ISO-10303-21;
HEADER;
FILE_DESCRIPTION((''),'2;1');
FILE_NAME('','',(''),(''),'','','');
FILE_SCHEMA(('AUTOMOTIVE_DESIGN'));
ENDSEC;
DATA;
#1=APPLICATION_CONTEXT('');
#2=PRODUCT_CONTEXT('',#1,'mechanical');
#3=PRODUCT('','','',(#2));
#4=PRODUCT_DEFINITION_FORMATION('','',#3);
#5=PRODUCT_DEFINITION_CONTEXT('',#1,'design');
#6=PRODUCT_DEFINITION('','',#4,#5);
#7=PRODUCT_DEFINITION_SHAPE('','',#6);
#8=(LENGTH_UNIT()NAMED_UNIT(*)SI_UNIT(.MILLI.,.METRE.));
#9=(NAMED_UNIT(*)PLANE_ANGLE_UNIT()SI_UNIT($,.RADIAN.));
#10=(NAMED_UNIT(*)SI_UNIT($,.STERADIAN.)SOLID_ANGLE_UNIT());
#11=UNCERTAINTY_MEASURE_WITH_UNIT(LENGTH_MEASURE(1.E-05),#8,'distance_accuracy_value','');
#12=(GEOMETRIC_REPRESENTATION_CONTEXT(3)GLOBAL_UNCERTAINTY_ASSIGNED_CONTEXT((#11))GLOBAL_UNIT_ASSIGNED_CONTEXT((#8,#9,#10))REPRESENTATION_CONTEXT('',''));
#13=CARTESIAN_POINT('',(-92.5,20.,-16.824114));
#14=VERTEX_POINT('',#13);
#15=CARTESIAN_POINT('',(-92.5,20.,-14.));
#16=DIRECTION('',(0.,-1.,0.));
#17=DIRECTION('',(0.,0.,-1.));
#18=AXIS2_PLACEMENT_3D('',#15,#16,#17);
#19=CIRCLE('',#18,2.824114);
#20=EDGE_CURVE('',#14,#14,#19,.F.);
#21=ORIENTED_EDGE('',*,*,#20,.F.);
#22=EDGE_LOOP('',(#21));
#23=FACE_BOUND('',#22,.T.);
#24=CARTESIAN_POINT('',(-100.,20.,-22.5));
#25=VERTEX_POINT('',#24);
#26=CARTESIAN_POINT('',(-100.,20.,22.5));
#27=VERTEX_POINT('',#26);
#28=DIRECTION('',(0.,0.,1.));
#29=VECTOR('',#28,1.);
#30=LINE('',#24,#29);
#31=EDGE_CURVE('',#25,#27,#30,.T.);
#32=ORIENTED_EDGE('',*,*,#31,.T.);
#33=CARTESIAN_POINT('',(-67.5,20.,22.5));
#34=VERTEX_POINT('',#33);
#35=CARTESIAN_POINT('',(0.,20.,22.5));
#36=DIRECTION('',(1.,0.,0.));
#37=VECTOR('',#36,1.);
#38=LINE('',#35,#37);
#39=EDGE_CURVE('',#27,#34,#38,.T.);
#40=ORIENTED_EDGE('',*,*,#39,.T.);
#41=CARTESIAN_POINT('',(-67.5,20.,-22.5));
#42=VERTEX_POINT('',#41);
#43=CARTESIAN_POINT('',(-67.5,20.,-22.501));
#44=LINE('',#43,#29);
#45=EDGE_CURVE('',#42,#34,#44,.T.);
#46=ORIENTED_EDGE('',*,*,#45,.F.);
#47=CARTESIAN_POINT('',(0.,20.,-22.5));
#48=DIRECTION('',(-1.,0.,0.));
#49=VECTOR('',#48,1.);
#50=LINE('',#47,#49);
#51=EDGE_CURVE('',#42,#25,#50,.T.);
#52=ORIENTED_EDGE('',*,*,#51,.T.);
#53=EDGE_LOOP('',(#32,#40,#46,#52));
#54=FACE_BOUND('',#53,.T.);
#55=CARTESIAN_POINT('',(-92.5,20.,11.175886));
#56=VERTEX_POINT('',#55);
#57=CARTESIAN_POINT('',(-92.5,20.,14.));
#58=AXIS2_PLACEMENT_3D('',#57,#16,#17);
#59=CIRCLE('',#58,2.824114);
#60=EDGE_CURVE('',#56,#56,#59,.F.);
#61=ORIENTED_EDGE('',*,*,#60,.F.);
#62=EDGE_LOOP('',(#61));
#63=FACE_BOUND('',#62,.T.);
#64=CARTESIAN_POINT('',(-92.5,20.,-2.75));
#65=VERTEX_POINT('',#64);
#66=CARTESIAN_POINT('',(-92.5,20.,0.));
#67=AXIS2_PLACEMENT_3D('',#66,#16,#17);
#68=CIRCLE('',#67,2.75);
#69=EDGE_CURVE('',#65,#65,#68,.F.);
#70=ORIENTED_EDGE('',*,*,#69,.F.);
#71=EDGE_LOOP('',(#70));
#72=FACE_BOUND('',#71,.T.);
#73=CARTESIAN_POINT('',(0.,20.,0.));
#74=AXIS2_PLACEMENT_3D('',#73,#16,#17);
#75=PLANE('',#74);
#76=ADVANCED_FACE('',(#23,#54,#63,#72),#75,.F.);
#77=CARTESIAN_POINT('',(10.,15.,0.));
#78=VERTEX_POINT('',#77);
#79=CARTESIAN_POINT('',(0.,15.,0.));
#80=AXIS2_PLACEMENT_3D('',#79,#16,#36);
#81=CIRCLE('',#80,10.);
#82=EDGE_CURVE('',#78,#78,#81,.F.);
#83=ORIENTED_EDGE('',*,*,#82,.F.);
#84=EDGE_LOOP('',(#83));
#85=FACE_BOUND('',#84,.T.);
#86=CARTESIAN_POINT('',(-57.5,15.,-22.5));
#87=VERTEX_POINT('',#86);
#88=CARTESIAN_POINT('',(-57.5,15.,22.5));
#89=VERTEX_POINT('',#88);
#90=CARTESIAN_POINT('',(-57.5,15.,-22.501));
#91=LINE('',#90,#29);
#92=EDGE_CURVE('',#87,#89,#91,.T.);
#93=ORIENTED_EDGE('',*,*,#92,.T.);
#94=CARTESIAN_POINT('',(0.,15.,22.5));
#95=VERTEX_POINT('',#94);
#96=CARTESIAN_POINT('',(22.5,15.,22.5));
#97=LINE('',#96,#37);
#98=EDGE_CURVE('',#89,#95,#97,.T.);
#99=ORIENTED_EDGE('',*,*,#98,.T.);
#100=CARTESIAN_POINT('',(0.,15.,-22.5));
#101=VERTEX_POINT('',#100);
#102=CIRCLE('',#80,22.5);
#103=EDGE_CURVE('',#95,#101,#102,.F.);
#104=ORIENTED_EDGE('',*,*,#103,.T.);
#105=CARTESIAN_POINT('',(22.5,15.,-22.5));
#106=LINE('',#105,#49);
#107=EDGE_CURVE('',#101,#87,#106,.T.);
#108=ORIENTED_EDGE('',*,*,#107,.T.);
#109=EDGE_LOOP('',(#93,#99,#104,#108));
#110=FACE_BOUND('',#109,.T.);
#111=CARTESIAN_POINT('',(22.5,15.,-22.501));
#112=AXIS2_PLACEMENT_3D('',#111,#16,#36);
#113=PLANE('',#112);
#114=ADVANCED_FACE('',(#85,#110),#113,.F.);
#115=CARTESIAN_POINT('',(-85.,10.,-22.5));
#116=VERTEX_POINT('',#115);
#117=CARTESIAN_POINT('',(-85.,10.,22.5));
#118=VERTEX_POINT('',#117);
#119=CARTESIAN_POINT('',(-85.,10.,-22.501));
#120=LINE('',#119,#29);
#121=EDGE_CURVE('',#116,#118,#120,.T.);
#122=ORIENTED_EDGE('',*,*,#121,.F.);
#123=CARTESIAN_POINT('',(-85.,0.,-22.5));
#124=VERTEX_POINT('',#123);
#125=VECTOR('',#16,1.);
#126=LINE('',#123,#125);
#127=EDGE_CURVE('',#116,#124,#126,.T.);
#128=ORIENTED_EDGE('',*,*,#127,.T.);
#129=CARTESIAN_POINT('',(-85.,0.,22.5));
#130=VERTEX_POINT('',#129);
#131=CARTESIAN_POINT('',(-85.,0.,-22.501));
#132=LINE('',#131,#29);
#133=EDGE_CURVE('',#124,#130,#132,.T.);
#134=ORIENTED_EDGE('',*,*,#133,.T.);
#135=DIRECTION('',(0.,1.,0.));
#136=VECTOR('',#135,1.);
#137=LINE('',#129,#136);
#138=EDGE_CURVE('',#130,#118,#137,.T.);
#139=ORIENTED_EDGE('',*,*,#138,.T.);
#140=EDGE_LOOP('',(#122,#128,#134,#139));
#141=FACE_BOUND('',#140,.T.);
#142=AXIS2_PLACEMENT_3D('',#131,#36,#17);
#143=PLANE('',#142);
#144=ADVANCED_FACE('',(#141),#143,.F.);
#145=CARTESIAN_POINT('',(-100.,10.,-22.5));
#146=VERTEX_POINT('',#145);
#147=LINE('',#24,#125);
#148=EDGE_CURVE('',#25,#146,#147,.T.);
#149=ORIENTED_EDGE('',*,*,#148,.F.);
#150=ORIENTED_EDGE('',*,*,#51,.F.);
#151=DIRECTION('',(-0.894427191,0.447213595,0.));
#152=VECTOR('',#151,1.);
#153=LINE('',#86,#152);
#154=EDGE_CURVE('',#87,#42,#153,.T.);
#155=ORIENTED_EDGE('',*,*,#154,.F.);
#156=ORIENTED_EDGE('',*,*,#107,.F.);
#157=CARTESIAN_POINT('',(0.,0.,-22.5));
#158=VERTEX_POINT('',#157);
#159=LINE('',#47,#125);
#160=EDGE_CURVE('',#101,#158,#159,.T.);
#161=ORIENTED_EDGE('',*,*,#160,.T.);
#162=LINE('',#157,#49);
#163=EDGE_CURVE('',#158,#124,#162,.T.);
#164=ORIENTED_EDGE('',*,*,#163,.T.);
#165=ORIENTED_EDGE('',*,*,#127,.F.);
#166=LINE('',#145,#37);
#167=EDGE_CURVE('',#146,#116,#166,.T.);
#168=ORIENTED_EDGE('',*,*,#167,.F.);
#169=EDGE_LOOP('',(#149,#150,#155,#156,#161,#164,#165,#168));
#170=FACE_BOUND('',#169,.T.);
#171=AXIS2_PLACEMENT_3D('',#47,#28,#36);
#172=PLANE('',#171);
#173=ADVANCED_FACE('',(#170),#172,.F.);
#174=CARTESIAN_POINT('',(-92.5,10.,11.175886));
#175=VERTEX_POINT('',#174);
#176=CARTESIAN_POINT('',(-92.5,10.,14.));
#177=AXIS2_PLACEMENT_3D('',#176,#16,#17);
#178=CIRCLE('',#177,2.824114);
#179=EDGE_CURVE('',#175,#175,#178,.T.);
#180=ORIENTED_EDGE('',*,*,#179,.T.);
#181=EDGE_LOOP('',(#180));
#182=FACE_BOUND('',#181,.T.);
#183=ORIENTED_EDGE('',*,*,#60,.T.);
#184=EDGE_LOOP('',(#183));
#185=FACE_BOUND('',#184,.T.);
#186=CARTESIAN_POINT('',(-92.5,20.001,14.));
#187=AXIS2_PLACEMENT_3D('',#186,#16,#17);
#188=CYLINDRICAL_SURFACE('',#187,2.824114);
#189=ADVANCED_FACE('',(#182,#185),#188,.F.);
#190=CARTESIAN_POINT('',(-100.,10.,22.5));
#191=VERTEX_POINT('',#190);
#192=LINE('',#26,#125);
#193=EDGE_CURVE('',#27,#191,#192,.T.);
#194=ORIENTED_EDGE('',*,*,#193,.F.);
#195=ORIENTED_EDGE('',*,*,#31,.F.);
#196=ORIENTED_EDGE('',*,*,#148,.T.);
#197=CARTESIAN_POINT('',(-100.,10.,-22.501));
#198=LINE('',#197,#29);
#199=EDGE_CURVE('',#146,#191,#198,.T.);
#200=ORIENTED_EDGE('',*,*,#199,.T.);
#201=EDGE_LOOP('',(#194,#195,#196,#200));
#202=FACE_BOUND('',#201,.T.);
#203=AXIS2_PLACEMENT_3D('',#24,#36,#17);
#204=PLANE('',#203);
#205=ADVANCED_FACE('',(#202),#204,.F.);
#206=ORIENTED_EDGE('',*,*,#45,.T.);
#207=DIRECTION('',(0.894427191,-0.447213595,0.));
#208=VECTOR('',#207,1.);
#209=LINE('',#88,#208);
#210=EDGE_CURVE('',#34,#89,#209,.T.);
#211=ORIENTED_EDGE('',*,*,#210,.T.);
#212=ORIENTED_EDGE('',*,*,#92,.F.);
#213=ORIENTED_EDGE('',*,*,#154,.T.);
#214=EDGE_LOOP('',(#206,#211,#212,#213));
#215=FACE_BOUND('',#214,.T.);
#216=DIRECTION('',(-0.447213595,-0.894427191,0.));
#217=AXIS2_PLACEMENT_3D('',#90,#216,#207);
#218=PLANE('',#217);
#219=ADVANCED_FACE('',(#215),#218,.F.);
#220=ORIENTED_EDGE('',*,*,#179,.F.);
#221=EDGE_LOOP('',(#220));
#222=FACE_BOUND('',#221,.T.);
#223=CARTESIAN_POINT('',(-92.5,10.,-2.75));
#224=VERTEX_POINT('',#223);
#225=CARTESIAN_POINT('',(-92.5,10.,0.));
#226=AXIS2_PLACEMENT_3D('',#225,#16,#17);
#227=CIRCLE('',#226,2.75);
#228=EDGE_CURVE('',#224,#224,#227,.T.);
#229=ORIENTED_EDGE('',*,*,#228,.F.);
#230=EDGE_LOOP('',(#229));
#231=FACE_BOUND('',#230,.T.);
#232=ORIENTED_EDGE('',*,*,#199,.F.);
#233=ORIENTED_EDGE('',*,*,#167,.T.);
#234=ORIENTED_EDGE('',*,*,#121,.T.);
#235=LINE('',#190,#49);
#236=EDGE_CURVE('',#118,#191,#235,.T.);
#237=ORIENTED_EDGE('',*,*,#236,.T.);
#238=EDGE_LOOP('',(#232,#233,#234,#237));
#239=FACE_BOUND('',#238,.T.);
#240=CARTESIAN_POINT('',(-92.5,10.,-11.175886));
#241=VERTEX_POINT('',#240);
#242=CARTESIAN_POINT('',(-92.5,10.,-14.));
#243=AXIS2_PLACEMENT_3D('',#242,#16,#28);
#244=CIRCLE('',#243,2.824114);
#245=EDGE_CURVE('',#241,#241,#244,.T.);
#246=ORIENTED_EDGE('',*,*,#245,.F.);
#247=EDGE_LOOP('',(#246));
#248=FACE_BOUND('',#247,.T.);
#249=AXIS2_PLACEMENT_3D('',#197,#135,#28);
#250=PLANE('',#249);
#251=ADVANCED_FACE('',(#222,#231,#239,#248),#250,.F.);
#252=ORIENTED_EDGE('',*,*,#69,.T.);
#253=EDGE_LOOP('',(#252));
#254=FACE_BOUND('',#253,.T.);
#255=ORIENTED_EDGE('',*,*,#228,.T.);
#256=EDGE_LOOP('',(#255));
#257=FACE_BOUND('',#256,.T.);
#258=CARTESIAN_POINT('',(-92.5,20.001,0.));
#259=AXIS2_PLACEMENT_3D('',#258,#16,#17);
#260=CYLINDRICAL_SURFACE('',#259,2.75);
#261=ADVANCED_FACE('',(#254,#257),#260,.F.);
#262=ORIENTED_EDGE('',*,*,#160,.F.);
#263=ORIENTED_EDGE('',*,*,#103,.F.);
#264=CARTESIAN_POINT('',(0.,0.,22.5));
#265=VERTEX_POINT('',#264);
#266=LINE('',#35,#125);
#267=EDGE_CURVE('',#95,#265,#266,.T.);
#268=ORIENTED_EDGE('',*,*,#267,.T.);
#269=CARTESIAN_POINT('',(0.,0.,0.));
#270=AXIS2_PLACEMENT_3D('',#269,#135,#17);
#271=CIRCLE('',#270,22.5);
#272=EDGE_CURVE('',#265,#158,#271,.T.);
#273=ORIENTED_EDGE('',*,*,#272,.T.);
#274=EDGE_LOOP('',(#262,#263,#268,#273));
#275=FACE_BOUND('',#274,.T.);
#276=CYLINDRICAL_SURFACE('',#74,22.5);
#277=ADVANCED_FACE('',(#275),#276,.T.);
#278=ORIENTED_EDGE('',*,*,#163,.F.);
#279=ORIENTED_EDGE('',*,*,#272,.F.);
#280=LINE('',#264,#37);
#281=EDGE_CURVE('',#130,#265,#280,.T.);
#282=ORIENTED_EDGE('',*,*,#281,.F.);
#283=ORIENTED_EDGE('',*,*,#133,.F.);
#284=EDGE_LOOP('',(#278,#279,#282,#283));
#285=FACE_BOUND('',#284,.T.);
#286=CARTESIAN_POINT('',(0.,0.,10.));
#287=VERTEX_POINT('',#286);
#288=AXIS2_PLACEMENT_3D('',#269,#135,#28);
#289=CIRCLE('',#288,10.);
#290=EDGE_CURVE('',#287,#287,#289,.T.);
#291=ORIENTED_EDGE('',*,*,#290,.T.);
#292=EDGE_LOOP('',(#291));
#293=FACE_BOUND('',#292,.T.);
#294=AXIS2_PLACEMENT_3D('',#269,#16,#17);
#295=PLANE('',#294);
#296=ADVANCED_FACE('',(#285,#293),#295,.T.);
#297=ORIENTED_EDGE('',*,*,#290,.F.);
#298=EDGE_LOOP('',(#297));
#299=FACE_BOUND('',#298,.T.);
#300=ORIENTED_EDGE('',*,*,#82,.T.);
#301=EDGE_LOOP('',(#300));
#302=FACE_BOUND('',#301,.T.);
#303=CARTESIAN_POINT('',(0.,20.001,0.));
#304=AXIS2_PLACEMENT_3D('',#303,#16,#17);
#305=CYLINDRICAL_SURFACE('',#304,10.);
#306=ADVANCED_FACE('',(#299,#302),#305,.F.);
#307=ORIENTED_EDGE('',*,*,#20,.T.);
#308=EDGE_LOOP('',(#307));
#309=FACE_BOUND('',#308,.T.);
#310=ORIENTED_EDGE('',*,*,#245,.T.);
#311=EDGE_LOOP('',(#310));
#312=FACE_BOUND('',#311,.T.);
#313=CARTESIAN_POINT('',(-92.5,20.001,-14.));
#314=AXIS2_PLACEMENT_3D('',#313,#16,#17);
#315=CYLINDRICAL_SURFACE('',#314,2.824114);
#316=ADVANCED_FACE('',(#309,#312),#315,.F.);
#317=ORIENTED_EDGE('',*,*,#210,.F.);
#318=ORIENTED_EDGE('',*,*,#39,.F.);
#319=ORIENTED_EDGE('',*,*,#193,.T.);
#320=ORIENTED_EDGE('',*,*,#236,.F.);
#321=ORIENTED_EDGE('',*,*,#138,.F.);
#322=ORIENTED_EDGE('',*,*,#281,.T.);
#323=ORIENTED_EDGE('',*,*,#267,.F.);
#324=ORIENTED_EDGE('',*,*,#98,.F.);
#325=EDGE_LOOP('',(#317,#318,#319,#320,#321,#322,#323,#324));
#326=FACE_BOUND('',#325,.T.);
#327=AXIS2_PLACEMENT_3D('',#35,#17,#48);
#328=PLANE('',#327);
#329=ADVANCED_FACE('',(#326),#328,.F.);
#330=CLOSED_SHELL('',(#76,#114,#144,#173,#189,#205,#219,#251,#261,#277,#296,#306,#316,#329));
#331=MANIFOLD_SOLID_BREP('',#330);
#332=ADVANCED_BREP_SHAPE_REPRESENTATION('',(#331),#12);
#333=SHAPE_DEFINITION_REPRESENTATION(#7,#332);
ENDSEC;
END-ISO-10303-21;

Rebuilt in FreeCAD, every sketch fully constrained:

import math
import FreeCAD as App
import Part
import Sketcher
Q = App.Units.Quantity

doc = App.newDocument("Part")
body = doc.addObject("PartDesign::Body", "Body")

# Sketch on XZ plane
sketch1 = body.newObject("Sketcher::SketchObject", "Sketch")
sketch1.AttachmentSupport = (doc.getObject("XZ_Plane"), [""])
sketch1.MapMode = "FlatFace"
sketch1.addGeometry([
    Part.LineSegment(App.Vector(0, -22, 0), App.Vector(-100, -22, 0)),
    Part.LineSegment(App.Vector(-100, -22, 0), App.Vector(-100, 22, 0)),
    Part.LineSegment(App.Vector(-100, 22, 0), App.Vector(0, 22, 0)),
    Part.ArcOfCircle(Part.Circle(App.Vector(0, 0, 0), App.Vector(0, 0, 1), 22), math.radians(-90), math.radians(90)),
], False)
sketch1.addConstraint([
    Sketcher.Constraint("Coincident", 0, 2, 1, 1),
    Sketcher.Constraint("Coincident", 1, 2, 2, 1),
    Sketcher.Constraint("Tangent", 2, 2, 3, 2),
    Sketcher.Constraint("Tangent", 3, 1, 0, 1),
    Sketcher.Constraint("Horizontal", 0),
    Sketcher.Constraint("Vertical", 1),
    Sketcher.Constraint("Horizontal", 2),
    Sketcher.Constraint("Coincident", 3, 3, -1, 1),
    Sketcher.Constraint("Radius", 3, Q("22.5 mm")),
    Sketcher.Constraint("DistanceX", 0, 2, 0, 1, Q("100 mm")),
])
pad1 = body.newObject("PartDesign::Pad", "Pad")
pad1.Profile = sketch1
pad1.Length = 20
pad1.Reversed = True

# Sketch on XY plane
sketch2 = body.newObject("Sketcher::SketchObject", "Sketch001")
sketch2.AttachmentSupport = (doc.getObject("XY_Plane"), [""])
sketch2.MapMode = "FlatFace"
sketch2.AttachmentOffset = App.Placement(App.Vector(0, 0, 22.5), App.Rotation())
sketch2.addGeometry([
    Part.LineSegment(App.Vector(-100, 10, 0), App.Vector(-100, 0, 0)),
    Part.LineSegment(App.Vector(-100, 0, 0), App.Vector(-85, 0, 0)),
    Part.LineSegment(App.Vector(-85, 0, 0), App.Vector(-85, 10, 0)),
    Part.LineSegment(App.Vector(-85, 10, 0), App.Vector(-100, 10, 0)),
], False)
sketch2.addConstraint([
    Sketcher.Constraint("Coincident", 0, 2, 1, 1),
    Sketcher.Constraint("Coincident", 1, 2, 2, 1),
    Sketcher.Constraint("Coincident", 2, 2, 3, 1),
    Sketcher.Constraint("Coincident", 3, 2, 0, 1),
    Sketcher.Constraint("Vertical", 0),
    Sketcher.Constraint("Horizontal", 1),
    Sketcher.Constraint("Vertical", 2),
    Sketcher.Constraint("Horizontal", 3),
    Sketcher.Constraint("PointOnObject", 0, 2, -1),
    Sketcher.Constraint("DistanceX", 1, 1, 1, 2, Q("15 mm")),
    Sketcher.Constraint("DistanceY", 0, 2, 0, 1, Q("10 mm")),
    Sketcher.Constraint("DistanceX", 0, 2, -1, 1, Q("100 mm")),
])
pocket1 = body.newObject("PartDesign::Pocket", "Pocket")
pocket1.Profile = sketch2
pocket1.Type = "UpToFirst"

# Sketch on XZ plane
sketch3 = body.newObject("Sketcher::SketchObject", "Sketch002")
sketch3.AttachmentSupport = (doc.getObject("XZ_Plane"), [""])
sketch3.MapMode = "FlatFace"
sketch3.AttachmentOffset = App.Placement(App.Vector(0, 0, -10), App.Rotation())
sketch3.addGeometry(Part.Circle(App.Vector(-92.5, 0, 0), App.Vector(0, 0, 1), 2.8), False)
sketch3.addConstraint([
    Sketcher.Constraint("PointOnObject", 0, 3, -1),
    Sketcher.Constraint("Diameter", 0, Q("5.5 mm")),
    Sketcher.Constraint("DistanceX", 0, 3, -1, 1, Q("92.5 mm")),
])
pocket2 = body.newObject("PartDesign::Pocket", "Pocket001")
pocket2.Profile = sketch3
pocket2.Type = "UpToFirst"

# Sketch on XZ plane
sketch4 = body.newObject("Sketcher::SketchObject", "Sketch003")
sketch4.AttachmentSupport = (doc.getObject("XZ_Plane"), [""])
sketch4.MapMode = "FlatFace"
sketch4.AttachmentOffset = App.Placement(App.Vector(0, 0, -10), App.Rotation())
sketch4.addGeometry(Part.Circle(App.Vector(-92.5, 14, 0), App.Vector(0, 0, 1), 2.8), False)
sketch4.addConstraint([
    Sketcher.Constraint("DistanceY", -1, 1, 0, 3, Q("14 mm")),
    Sketcher.Constraint("DistanceX", 0, 3, -1, 1, Q("92.5 mm")),
    Sketcher.Constraint("Diameter", 0, Q("5.648228 mm")),
])
pocket3 = body.newObject("PartDesign::Pocket", "Pocket002")
pocket3.Profile = sketch4
pocket3.Type = "UpToFirst"

# Sketch on XZ plane
sketch5 = body.newObject("Sketcher::SketchObject", "Sketch004")
sketch5.AttachmentSupport = (doc.getObject("XZ_Plane"), [""])
sketch5.MapMode = "FlatFace"
sketch5.AttachmentOffset = App.Placement(App.Vector(0, 0, -10), App.Rotation())
sketch5.addGeometry(Part.Circle(App.Vector(-92.5, -14, 0), App.Vector(0, 0, 1), 2.8), False)
sketch5.addConstraint([
    Sketcher.Constraint("DistanceY", 0, 3, -1, 1, Q("14 mm")),
    Sketcher.Constraint("DistanceX", 0, 3, -1, 1, Q("92.5 mm")),
    Sketcher.Constraint("Diameter", 0, Q("5.648228 mm")),
])
pocket4 = body.newObject("PartDesign::Pocket", "Pocket003")
pocket4.Profile = sketch5
pocket4.Type = "UpToFirst"

# Sketch on XZ plane
sketch6 = body.newObject("Sketcher::SketchObject", "Sketch005")
sketch6.AttachmentSupport = (doc.getObject("XZ_Plane"), [""])
sketch6.MapMode = "FlatFace"
sketch6.addGeometry(Part.Circle(App.Vector(0, 0, 0), App.Vector(0, 0, 1), 10), False)
sketch6.addConstraint([
    Sketcher.Constraint("Coincident", 0, 3, -1, 1),
    Sketcher.Constraint("Diameter", 0, Q("20 mm")),
])
pocket5 = body.newObject("PartDesign::Pocket", "Pocket004")
pocket5.Profile = sketch6
pocket5.Type = "UpToFirst"

# Sketch on XY plane
sketch7 = body.newObject("Sketcher::SketchObject", "Sketch006")
sketch7.AttachmentSupport = (doc.getObject("XY_Plane"), [""])
sketch7.MapMode = "FlatFace"
sketch7.AttachmentOffset = App.Placement(App.Vector(0, 0, 22.5), App.Rotation())
sketch7.addGeometry([
    Part.LineSegment(App.Vector(22, 15, 0), App.Vector(22, 20, 0)),
    Part.LineSegment(App.Vector(22, 20, 0), App.Vector(-68, 20, 0)),
    Part.LineSegment(App.Vector(-68, 20, 0), App.Vector(-58, 15, 0)),
    Part.LineSegment(App.Vector(-58, 15, 0), App.Vector(22, 15, 0)),
], False)
sketch7.addConstraint([
    Sketcher.Constraint("Coincident", 0, 2, 1, 1),
    Sketcher.Constraint("Coincident", 1, 2, 2, 1),
    Sketcher.Constraint("Coincident", 2, 2, 3, 1),
    Sketcher.Constraint("Coincident", 3, 2, 0, 1),
    Sketcher.Constraint("Vertical", 0),
    Sketcher.Constraint("Horizontal", 1),
    Sketcher.Constraint("Horizontal", 3),
    Sketcher.Constraint("DistanceX", 1, 2, 1, 1, Q("90 mm")),
    Sketcher.Constraint("DistanceX", 3, 1, 3, 2, Q("80 mm")),
    Sketcher.Constraint("DistanceY", 0, 1, 0, 2, Q("5 mm")),
    Sketcher.Constraint("DistanceY", -1, 1, 0, 2, Q("20 mm")),
    Sketcher.Constraint("DistanceX", -1, 1, 0, 2, Q("22.5 mm")),
])
pocket6 = body.newObject("PartDesign::Pocket", "Pocket005")
pocket6.Profile = sketch7
pocket6.Type = "UpToFirst"

doc.recompute()
